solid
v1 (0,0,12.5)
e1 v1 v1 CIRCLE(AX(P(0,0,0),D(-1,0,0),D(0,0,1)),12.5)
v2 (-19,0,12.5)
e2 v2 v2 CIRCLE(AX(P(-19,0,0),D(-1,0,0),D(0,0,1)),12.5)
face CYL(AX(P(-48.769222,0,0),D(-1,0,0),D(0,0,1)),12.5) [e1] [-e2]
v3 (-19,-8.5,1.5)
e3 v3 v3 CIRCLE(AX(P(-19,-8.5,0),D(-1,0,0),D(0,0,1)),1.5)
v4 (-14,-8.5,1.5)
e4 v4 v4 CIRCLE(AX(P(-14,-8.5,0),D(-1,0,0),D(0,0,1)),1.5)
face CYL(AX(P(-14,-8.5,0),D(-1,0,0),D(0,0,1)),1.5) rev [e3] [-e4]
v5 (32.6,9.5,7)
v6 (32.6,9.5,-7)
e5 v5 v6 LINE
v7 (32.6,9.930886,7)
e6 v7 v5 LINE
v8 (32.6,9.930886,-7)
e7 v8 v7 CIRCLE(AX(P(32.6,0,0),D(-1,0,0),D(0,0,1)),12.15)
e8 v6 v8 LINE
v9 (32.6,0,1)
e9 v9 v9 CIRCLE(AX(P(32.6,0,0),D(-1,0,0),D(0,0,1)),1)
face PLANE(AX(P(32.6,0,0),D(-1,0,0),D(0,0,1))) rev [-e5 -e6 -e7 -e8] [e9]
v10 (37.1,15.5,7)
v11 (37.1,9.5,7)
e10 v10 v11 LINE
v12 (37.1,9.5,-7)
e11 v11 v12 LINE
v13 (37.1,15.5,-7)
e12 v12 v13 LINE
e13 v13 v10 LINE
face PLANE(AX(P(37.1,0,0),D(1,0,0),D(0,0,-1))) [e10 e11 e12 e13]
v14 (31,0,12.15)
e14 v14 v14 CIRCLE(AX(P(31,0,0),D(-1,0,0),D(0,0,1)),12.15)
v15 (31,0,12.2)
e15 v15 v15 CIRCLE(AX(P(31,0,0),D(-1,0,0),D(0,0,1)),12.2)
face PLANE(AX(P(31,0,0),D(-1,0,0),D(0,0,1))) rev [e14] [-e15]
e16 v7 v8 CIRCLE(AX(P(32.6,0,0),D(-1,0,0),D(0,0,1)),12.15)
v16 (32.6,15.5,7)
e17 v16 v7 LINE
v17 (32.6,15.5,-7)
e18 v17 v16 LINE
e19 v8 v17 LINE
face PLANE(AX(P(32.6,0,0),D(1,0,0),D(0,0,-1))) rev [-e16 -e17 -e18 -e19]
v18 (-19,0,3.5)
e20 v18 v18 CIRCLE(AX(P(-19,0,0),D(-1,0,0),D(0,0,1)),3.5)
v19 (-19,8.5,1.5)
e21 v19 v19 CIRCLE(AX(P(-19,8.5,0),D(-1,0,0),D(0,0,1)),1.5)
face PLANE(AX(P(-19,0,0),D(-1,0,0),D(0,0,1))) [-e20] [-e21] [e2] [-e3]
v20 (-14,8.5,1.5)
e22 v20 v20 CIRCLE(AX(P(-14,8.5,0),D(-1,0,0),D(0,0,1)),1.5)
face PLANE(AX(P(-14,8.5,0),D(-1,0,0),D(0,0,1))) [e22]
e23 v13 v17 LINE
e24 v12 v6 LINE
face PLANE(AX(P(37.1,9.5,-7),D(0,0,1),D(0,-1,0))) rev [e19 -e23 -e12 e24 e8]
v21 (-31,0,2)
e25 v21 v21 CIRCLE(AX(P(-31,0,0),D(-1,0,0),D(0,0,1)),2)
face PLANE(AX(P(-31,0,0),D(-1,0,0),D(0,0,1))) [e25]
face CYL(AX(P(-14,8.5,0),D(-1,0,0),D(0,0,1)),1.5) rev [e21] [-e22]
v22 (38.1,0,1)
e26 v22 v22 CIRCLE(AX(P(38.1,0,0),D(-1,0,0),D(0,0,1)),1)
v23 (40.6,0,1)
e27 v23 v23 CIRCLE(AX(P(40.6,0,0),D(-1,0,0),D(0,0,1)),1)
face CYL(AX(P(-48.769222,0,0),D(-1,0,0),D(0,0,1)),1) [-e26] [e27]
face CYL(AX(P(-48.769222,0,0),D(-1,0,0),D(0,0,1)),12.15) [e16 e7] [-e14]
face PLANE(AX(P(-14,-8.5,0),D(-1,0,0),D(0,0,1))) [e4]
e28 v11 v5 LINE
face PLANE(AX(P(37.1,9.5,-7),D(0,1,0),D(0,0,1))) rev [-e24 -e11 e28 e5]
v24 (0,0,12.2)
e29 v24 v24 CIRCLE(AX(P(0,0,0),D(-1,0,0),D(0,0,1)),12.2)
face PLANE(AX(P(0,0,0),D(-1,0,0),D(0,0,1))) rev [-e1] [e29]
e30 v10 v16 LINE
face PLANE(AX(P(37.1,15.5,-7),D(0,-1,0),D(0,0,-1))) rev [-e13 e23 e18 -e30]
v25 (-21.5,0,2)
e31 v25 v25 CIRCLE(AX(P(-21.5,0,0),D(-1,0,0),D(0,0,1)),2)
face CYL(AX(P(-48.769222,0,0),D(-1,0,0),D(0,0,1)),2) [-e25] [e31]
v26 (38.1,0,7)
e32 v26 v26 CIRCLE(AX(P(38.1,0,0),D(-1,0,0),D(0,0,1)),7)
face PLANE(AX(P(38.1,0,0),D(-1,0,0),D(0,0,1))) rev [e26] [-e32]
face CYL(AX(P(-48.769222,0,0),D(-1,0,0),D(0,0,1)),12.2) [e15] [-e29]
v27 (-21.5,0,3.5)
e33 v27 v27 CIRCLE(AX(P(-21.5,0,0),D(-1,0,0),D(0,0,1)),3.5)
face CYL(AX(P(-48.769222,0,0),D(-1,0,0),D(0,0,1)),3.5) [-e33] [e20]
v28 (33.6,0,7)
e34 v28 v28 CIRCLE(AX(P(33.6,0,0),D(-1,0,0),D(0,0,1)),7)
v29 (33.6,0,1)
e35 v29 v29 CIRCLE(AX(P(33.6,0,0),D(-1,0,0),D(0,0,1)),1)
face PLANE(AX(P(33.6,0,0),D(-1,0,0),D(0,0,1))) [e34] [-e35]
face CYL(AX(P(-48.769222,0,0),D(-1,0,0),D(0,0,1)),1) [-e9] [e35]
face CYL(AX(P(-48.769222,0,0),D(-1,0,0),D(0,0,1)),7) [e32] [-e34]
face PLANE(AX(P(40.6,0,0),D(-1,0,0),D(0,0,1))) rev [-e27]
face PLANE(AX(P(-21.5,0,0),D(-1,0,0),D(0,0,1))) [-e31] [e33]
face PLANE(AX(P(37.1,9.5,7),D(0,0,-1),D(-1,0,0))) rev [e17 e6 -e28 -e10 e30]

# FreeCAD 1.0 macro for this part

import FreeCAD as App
import Part
import Sketcher

doc = App.newDocument("Part")
body = doc.addObject("PartDesign::Body", "Body")

# Sketch on XZ plane
sketch1 = body.newObject("Sketcher::SketchObject", "Sketch")
sketch1.AttachmentSupport = (doc.getObject("XZ_Plane"), [""])
sketch1.MapMode = "FlatFace"
sketch1.addGeometry([
    Part.LineSegment(App.Vector(33.6, 1, 0), App.Vector(33.6, 7, 0)),  # 0
    Part.LineSegment(App.Vector(33.6, 7, 0), App.Vector(38.1, 7, 0)),  # 1
    Part.LineSegment(App.Vector(38.1, 7, 0), App.Vector(38.1, 1, 0)),  # 2
    Part.LineSegment(App.Vector(38.1, 1, 0), App.Vector(40.6, 1, 0)),  # 3
    Part.LineSegment(App.Vector(40.6, 1, 0), App.Vector(40.6, 0, 0)),  # 4
    Part.LineSegment(App.Vector(40.6, 0, 0), App.Vector(-31, 0, 0)),  # 5
    Part.LineSegment(App.Vector(-31, 0, 0), App.Vector(-31, 2, 0)),  # 6
    Part.LineSegment(App.Vector(-31, 2, 0), App.Vector(-21.5, 2, 0)),  # 7
    Part.LineSegment(App.Vector(-21.5, 2, 0), App.Vector(-21.5, 3.5, 0)),  # 8
    Part.LineSegment(App.Vector(-21.5, 3.5, 0), App.Vector(-19, 3.5, 0)),  # 9
    Part.LineSegment(App.Vector(-19, 3.5, 0), App.Vector(-19, 12.5, 0)),  # 10
    Part.LineSegment(App.Vector(-19, 12.5, 0), App.Vector(0, 12.5, 0)),  # 11
    Part.LineSegment(App.Vector(0, 12.5, 0), App.Vector(0, 12.2, 0)),  # 12
    Part.LineSegment(App.Vector(0, 12.2, 0), App.Vector(31, 12.2, 0)),  # 13
    Part.LineSegment(App.Vector(31, 12.2, 0), App.Vector(31, 12.15, 0)),  # 14
    Part.LineSegment(App.Vector(31, 12.15, 0), App.Vector(32.6, 12.15, 0)),  # 15
    Part.LineSegment(App.Vector(32.6, 12.15, 0), App.Vector(32.6, 1, 0)),  # 16
    Part.BSplineCurve([App.Vector(33.6, 1, 0), App.Vector(33.266667, 1, 0), App.Vector(32.933333, 1, 0), App.Vector(32.6, 1, 0)], [4, 4], [0, 1], False, 3, [1, 1, 1, 1], False),  # 17
], False)
sketch1.addConstraint([
    Sketcher.Constraint("Block", 17),
    Sketcher.Constraint("Coincident", 0, 2, 1, 1),
    Sketcher.Constraint("Coincident", 1, 2, 2, 1),
    Sketcher.Constraint("Coincident", 2, 2, 3, 1),
    Sketcher.Constraint("Coincident", 3, 2, 4, 1),
    Sketcher.Constraint("Coincident", 4, 2, 5, 1),
    Sketcher.Constraint("Coincident", 5, 2, 6, 1),
    Sketcher.Constraint("Coincident", 6, 2, 7, 1),
    Sketcher.Constraint("Coincident", 7, 2, 8, 1),
    Sketcher.Constraint("Coincident", 8, 2, 9, 1),
    Sketcher.Constraint("Coincident", 9, 2, 10, 1),
    Sketcher.Constraint("Coincident", 10, 2, 11, 1),
    Sketcher.Constraint("Coincident", 11, 2, 12, 1),
    Sketcher.Constraint("Coincident", 12, 2, 13, 1),
    Sketcher.Constraint("Coincident", 13, 2, 14, 1),
    Sketcher.Constraint("Coincident", 14, 2, 15, 1),
    Sketcher.Constraint("Coincident", 15, 2, 16, 1),
    Sketcher.Constraint("Coincident", 16, 2, 17, 2),
    Sketcher.Constraint("Coincident", 17, 1, 0, 1),
    Sketcher.Constraint("Vertical", 0),
    Sketcher.Constraint("Horizontal", 1),
    Sketcher.Constraint("Vertical", 2),
    Sketcher.Constraint("Horizontal", 3),
    Sketcher.Constraint("Vertical", 4),
    Sketcher.Constraint("Horizontal", 5),
    Sketcher.Constraint("Vertical", 6),
    Sketcher.Constraint("Horizontal", 7),
    Sketcher.Constraint("Vertical", 8),
    Sketcher.Constraint("Horizontal", 9),
    Sketcher.Constraint("Vertical", 10),
    Sketcher.Constraint("Horizontal", 11),
    Sketcher.Constraint("Vertical", 12),
    Sketcher.Constraint("Horizontal", 13),
    Sketcher.Constraint("Vertical", 14),
    Sketcher.Constraint("Horizontal", 15),
    Sketcher.Constraint("Vertical", 16),
    Sketcher.Constraint("PointOnObject", 4, 2, -1),
    Sketcher.Constraint("PointOnObject", 11, 2, -2),
    Sketcher.Constraint("Horizontal", 3, 2, 16, 2),
    Sketcher.Constraint("Equal", 3, 9),
    Sketcher.Constraint("DistanceX", 11, 1, 11, 2, 19.0),
    Sketcher.Constraint("DistanceX", 13, 1, 13, 2, 31.0),
    Sketcher.Constraint("DistanceY", 0, 1, 0, 2, 6.0),
    Sketcher.Constraint("DistanceY", 6, 1, 6, 2, 2.0),
    Sketcher.Constraint("DistanceY", 10, 1, 10, 2, 9.0),
    Sketcher.Constraint("DistanceX", 1, 1, 1, 2, 4.5),
    Sketcher.Constraint("DistanceX", 3, 1, 3, 2, 2.5),
    Sketcher.Constraint("DistanceX", 5, 2, 5, 1, 71.6),
    Sketcher.Constraint("DistanceY", 8, 1, 8, 2, 1.5),
    Sketcher.Constraint("DistanceY", 12, 2, 12, 1, 0.3),
    Sketcher.Constraint("DistanceY", 14, 2, 14, 1, 0.05),
])
revolution = body.newObject("PartDesign::Revolution", "Revolution")
revolution.Profile = sketch1
revolution.ReferenceAxis = (sketch1, ["H_Axis"])
revolution.Angle = 360

# Sketch on YZ plane
sketch2 = body.newObject("Sketcher::SketchObject", "Sketch001")
sketch2.AttachmentSupport = (doc.getObject("YZ_Plane"), [""])
sketch2.MapMode = "FlatFace"
sketch2.AttachmentOffset = App.Placement(App.Vector(0, 0, -19), App.Rotation())
sketch2.addGeometry([
    Part.Circle(App.Vector(8.5, 0, 0), App.Vector(0, 0, 1), 1.5),
    Part.Circle(App.Vector(-8.5, 0, 0), App.Vector(0, 0, 1), 1.5),
], False)
sketch2.addConstraint([
    Sketcher.Constraint("Equal", 0, 1),
    Sketcher.Constraint("Symmetric", 0, 3, 1, 3, -1, 1),
    Sketcher.Constraint("PointOnObject", 0, 3, -1),
    Sketcher.Constraint("Diameter", 0, 3.0),
    Sketcher.Constraint("DistanceX", 1, 3, 0, 3, 17.0),
])
pocket1 = body.newObject("PartDesign::Pocket", "Pocket")
pocket1.Profile = sketch2
pocket1.Length = 5
pocket1.Reversed = True

# Sketch on YZ plane
sketch3 = body.newObject("Sketcher::SketchObject", "Sketch002")
sketch3.AttachmentSupport = (doc.getObject("YZ_Plane"), [""])
sketch3.MapMode = "FlatFace"
sketch3.AttachmentOffset = App.Placement(App.Vector(0, 0, 32.6), App.Rotation())
sketch3.addGeometry([
    Part.LineSegment(App.Vector(16, 7, 0), App.Vector(10, 7, 0)),
    Part.LineSegment(App.Vector(10, 7, 0), App.Vector(10, -7, 0)),
    Part.LineSegment(App.Vector(10, -7, 0), App.Vector(16, -7, 0)),
    Part.LineSegment(App.Vector(16, -7, 0), App.Vector(16, 7, 0)),
], False)
sketch3.addConstraint([
    Sketcher.Constraint("Coincident", 0, 2, 1, 1),
    Sketcher.Constraint("Coincident", 1, 2, 2, 1),
    Sketcher.Constraint("Coincident", 2, 2, 3, 1),
    Sketcher.Constraint("Coincident", 3, 2, 0, 1),
    Sketcher.Constraint("Horizontal", 0),
    Sketcher.Constraint("Vertical", 1),
    Sketcher.Constraint("Horizontal", 2),
    Sketcher.Constraint("Vertical", 3),
    Sketcher.Constraint("DistanceX", 0, 2, 0, 1, 6.0),
    Sketcher.Constraint("DistanceY", 1, 2, 1, 1, 14.0),
    Sketcher.Constraint("DistanceY", -1, 1, 0, 2, 7.0),
    Sketcher.Constraint("DistanceX", -1, 1, 0, 2, 9.5),
])
pad1 = body.newObject("PartDesign::Pad", "Pad")
pad1.Profile = sketch3
pad1.Length = 4.5

doc.recompute()
